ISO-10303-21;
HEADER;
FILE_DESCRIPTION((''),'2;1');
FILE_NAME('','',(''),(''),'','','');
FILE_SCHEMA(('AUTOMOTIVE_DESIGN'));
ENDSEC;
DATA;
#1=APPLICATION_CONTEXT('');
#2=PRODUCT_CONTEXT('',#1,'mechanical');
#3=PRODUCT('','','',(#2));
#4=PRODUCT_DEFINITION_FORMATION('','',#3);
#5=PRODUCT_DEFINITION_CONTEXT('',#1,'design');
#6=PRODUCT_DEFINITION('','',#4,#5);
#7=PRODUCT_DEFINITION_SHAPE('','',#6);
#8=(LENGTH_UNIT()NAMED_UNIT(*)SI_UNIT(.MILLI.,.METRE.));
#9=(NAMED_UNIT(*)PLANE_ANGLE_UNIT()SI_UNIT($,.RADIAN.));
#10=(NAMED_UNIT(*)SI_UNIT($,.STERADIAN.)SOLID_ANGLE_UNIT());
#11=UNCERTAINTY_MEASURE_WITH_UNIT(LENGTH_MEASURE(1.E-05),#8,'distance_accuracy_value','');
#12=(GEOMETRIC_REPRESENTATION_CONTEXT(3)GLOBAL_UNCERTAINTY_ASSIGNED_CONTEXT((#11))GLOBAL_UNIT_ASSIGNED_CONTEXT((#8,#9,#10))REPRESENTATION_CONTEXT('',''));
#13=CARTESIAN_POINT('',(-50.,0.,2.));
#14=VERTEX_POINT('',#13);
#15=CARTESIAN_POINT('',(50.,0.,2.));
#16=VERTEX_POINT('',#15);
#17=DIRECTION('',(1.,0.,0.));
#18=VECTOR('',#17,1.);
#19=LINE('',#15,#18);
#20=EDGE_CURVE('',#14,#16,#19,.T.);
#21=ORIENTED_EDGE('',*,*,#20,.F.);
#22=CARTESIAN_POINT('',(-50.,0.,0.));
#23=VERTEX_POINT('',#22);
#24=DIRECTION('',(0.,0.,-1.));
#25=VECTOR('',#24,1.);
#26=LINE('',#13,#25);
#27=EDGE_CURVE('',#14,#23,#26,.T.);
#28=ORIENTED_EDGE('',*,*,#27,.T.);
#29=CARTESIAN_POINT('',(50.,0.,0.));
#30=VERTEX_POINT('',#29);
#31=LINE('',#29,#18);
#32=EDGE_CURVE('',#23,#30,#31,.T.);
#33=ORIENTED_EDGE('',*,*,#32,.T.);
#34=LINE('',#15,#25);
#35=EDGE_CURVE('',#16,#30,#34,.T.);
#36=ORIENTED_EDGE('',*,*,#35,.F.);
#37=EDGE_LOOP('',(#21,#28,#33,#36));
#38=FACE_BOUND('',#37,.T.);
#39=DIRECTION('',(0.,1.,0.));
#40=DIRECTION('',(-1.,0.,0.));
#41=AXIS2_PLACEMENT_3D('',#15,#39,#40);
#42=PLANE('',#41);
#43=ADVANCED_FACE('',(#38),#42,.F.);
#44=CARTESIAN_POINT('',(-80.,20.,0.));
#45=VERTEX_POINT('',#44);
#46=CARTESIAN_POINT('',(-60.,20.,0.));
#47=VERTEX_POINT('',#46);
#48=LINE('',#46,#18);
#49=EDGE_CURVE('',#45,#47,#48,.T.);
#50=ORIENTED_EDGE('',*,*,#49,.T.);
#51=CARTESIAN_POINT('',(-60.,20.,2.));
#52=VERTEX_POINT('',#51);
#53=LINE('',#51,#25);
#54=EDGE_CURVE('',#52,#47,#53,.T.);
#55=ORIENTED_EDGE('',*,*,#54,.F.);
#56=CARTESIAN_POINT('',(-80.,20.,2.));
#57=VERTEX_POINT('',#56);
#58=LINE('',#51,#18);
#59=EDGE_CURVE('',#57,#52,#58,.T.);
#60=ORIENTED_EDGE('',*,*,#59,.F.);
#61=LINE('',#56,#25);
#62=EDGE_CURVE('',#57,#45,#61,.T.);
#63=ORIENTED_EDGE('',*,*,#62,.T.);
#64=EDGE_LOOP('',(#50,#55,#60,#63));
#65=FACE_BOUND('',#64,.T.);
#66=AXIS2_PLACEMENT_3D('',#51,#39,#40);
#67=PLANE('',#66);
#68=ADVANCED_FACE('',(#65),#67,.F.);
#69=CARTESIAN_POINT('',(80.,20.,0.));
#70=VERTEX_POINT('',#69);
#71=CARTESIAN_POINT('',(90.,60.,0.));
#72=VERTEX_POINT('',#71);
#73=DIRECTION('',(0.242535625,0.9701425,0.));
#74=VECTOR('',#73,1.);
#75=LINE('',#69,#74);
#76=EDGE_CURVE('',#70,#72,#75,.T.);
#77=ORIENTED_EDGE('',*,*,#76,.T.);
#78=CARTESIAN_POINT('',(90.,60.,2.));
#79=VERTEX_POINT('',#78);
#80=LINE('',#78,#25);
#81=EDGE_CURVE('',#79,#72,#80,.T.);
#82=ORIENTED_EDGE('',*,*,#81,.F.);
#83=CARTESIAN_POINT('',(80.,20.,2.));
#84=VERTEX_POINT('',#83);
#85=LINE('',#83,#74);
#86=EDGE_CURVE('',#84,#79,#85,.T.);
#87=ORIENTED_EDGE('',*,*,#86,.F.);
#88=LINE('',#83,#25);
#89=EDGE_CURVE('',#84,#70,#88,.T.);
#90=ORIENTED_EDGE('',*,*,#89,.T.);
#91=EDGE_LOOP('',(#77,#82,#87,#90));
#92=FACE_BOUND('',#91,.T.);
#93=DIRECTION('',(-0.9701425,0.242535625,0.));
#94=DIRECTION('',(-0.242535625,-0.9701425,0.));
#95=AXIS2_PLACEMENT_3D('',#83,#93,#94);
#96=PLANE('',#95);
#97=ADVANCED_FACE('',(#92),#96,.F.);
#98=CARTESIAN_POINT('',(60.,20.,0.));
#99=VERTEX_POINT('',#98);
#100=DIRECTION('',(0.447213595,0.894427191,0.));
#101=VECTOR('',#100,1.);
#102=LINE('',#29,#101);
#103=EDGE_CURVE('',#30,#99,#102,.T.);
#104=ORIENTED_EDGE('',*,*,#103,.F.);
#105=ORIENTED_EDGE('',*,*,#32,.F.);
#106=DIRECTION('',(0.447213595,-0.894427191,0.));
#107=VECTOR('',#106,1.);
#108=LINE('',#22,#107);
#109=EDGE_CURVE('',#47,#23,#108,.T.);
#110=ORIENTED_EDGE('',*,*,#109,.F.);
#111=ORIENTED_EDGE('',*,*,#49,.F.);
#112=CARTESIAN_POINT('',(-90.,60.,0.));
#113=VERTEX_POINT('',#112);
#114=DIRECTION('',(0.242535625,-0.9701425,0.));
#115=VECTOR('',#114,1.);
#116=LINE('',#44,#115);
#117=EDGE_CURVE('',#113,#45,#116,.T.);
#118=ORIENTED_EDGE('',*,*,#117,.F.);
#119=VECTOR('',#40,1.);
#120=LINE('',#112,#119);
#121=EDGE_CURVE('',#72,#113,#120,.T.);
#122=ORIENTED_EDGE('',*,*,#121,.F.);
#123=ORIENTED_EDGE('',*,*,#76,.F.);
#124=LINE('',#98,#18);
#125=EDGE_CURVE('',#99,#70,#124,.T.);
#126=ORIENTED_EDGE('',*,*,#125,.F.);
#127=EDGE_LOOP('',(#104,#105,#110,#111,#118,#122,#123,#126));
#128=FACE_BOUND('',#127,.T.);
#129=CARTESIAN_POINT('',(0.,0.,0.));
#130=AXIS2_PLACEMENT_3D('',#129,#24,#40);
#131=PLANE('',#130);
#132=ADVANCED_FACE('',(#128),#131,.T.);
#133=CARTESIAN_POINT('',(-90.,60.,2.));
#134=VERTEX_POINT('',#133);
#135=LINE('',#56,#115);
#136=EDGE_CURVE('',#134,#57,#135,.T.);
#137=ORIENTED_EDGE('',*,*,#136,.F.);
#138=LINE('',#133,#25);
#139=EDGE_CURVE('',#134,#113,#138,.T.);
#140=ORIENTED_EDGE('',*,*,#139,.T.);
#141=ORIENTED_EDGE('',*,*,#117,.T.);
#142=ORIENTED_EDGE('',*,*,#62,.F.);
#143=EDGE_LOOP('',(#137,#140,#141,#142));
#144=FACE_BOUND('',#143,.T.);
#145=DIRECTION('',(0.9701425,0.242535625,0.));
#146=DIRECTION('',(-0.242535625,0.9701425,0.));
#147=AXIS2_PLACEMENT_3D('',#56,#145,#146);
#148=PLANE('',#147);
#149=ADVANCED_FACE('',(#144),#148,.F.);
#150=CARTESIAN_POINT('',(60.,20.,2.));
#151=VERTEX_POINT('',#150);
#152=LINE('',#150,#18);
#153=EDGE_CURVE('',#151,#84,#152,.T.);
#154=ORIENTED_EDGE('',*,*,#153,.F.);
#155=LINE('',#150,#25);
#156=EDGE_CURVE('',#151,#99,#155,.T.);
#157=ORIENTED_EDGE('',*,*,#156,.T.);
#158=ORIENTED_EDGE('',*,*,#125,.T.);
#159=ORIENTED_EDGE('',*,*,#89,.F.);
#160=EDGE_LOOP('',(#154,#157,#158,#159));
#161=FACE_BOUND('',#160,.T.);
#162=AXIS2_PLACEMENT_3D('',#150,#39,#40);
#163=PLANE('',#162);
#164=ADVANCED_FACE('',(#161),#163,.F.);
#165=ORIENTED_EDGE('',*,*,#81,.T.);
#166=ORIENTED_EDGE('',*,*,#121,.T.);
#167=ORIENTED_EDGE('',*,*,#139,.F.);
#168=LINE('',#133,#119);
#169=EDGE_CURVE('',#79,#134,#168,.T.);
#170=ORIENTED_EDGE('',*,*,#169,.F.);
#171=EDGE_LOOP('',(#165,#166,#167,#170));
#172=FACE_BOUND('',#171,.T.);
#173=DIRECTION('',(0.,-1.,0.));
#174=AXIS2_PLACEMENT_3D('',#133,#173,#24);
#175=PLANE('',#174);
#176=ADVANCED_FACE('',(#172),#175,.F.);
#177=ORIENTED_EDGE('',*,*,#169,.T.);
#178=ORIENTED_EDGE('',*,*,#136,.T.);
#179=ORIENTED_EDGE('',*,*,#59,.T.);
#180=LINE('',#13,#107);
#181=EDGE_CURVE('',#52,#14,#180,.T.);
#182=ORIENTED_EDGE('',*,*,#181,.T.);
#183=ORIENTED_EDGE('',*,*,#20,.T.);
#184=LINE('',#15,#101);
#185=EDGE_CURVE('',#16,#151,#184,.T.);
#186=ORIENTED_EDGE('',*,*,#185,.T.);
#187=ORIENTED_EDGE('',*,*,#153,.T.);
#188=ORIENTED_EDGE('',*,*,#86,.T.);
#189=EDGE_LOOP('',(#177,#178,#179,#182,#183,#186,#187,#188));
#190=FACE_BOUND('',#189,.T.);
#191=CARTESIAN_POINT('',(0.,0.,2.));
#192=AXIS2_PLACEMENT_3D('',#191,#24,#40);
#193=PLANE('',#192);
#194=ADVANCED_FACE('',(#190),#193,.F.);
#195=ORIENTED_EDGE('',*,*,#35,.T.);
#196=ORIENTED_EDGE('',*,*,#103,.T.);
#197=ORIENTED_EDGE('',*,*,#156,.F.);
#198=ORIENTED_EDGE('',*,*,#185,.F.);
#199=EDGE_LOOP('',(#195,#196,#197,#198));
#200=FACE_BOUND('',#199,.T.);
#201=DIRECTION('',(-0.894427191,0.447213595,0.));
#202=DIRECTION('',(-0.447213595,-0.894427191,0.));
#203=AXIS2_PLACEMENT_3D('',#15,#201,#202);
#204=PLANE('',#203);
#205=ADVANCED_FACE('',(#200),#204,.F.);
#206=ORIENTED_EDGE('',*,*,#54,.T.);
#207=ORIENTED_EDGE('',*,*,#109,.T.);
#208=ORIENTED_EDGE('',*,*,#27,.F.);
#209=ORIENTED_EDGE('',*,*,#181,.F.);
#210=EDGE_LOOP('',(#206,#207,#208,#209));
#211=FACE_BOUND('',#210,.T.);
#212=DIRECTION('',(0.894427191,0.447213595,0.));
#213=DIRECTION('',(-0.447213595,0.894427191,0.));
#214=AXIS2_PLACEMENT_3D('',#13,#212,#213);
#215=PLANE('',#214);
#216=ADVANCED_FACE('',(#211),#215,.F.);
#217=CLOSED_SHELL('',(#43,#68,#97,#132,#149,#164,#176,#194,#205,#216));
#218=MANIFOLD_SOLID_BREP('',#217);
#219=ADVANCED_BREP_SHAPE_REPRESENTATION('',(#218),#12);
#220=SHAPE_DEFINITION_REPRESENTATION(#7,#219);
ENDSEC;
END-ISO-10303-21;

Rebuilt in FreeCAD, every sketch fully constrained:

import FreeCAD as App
import Part
import Sketcher

doc = App.newDocument("Part")
body = doc.addObject("PartDesign::Body", "Body")

sketch1 = doc.addObject("Sketcher::SketchObject", "Sketch")
body.addObject(sketch1)
sketch1.AttachmentSupport = (doc.XY_Plane, [""])
sketch1.MapMode = "FlatFace"
sketch1.addGeometry([
    Part.LineSegment(App.Vector(90, 60, 0), App.Vector(-90, 60, 0)),
    Part.LineSegment(App.Vector(-90, 60, 0), App.Vector(-80, 20, 0)),
    Part.LineSegment(App.Vector(-80, 20, 0), App.Vector(-60, 20, 0)),
    Part.LineSegment(App.Vector(-60, 20, 0), App.Vector(-50, 0, 0)),
    Part.LineSegment(App.Vector(-50, 0, 0), App.Vector(50, 0, 0)),
    Part.LineSegment(App.Vector(50, 0, 0), App.Vector(60, 20, 0)),
    Part.LineSegment(App.Vector(60, 20, 0), App.Vector(80, 20, 0)),
    Part.LineSegment(App.Vector(80, 20, 0), App.Vector(90, 60, 0)),
], False)
sketch1.addConstraint([
    Sketcher.Constraint("Coincident", 0, 2, 1, 1),
    Sketcher.Constraint("Coincident", 1, 2, 2, 1),
    Sketcher.Constraint("Coincident", 2, 2, 3, 1),
    Sketcher.Constraint("Coincident", 3, 2, 4, 1),
    Sketcher.Constraint("Coincident", 4, 2, 5, 1),
    Sketcher.Constraint("Coincident", 5, 2, 6, 1),
    Sketcher.Constraint("Coincident", 6, 2, 7, 1),
    Sketcher.Constraint("Coincident", 7, 2, 0, 1),
    Sketcher.Constraint("Horizontal", 0),
    Sketcher.Constraint("Horizontal", 2),
    Sketcher.Constraint("Horizontal", 4),
    Sketcher.Constraint("Horizontal", 6),
    Sketcher.Constraint("Symmetric", 3, 2, 4, 2, -1, 1),
    Sketcher.Constraint("Symmetric", 2, 2, 5, 2, -2),
    Sketcher.Constraint("Equal", 2, 6),
    Sketcher.Constraint("Equal", 1, 7),
    Sketcher.Constraint("DistanceX", 0, 2, 0, 1, 180.0),
    Sketcher.Constraint("DistanceX", 2, 1, 2, 2, 20.0),
    Sketcher.Constraint("DistanceX", 4, 1, 4, 2, 100.0),
    Sketcher.Constraint("DistanceY", -1, 1, 0, 2, 60.0),
    Sketcher.Constraint("DistanceX", 1, 2, -1, 1, 80.0),
    Sketcher.Constraint("DistanceY", -1, 1, 1, 2, 20.0),
])
pad1 = doc.addObject("PartDesign::Pad", "Pad")
body.addObject(pad1)
pad1.Profile = sketch1
pad1.Length = 2

doc.recompute()
